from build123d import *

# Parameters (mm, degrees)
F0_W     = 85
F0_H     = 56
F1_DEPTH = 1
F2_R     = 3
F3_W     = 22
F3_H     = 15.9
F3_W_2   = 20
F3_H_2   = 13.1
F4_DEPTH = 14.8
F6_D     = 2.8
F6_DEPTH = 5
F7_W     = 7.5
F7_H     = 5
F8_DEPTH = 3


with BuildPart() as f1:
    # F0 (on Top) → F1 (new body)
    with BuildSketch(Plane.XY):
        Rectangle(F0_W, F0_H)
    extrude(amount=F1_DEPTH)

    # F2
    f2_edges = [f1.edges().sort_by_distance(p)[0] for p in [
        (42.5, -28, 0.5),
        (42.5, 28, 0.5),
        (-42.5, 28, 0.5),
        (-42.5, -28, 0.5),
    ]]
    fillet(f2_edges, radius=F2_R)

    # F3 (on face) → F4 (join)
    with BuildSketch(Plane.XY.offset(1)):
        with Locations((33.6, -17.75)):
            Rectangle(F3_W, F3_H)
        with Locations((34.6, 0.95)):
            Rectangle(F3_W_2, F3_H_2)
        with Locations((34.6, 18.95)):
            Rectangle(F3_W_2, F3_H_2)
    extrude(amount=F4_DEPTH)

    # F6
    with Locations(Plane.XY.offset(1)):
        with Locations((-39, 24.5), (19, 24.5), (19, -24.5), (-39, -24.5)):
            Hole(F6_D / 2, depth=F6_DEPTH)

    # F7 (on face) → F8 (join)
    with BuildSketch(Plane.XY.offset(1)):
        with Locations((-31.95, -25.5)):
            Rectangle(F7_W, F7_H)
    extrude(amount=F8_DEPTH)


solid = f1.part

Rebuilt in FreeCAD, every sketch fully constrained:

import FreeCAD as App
import Part
import Sketcher


def edges_at(feature, points):
    """Names of the edges that pass closest to the given points."""
    edges = feature.Shape.Edges
    near = lambda p: min(range(len(edges)), key=lambda i: edges[i].distToShape(Part.Vertex(*p))[0])
    return sorted({f"Edge{near(p) + 1}" for p in points})

doc = App.newDocument("Part")
body = doc.addObject("PartDesign::Body", "Body")

# Sketch on XY plane
sketch1 = body.newObject("Sketcher::SketchObject", "Sketch")
sketch1.AttachmentSupport = (doc.getObject("XY_Plane"), [""])
sketch1.MapMode = "FlatFace"
sketch1.addGeometry([
    Part.LineSegment(App.Vector(-42, 28, 0), App.Vector(-42, -28, 0)),
    Part.LineSegment(App.Vector(-42, -28, 0), App.Vector(42, -28, 0)),
    Part.LineSegment(App.Vector(42, -28, 0), App.Vector(42, 28, 0)),
    Part.LineSegment(App.Vector(42, 28, 0), App.Vector(-42, 28, 0)),
], False)
sketch1.addConstraint([
    Sketcher.Constraint("Coincident", 0, 2, 1, 1),
    Sketcher.Constraint("Coincident", 1, 2, 2, 1),
    Sketcher.Constraint("Coincident", 2, 2, 3, 1),
    Sketcher.Constraint("Coincident", 3, 2, 0, 1),
    Sketcher.Constraint("Vertical", 0),
    Sketcher.Constraint("Horizontal", 1),
    Sketcher.Constraint("Vertical", 2),
    Sketcher.Constraint("Horizontal", 3),
    Sketcher.Constraint("Symmetric", 0, 2, 2, 2, -1, 1),
    Sketcher.Constraint("DistanceX", 1, 1, 1, 2, 85.0),
    Sketcher.Constraint("DistanceY", 0, 2, 0, 1, 56.0),
])
pad1 = body.newObject("PartDesign::Pad", "Pad")
pad1.Profile = sketch1
pad1.Length = 1
doc.recompute()

fillet = body.newObject("PartDesign::Fillet", "Fillet")
fillet.Base = (pad1, edges_at(pad1, [
    (42.5, -28, 0.5),
    (42.5, 28, 0.5),
    (-42.5, 28, 0.5),
    (-42.5, -28, 0.5),
]))
fillet.Radius = 3

# Sketch on XY plane
sketch2 = body.newObject("Sketcher::SketchObject", "Sketch001")
sketch2.AttachmentSupport = (doc.getObject("XY_Plane"), [""])
sketch2.MapMode = "FlatFace"
sketch2.AttachmentOffset = App.Placement(App.Vector(0, 0, 1), App.Rotation())
sketch2.addGeometry([
    Part.LineSegment(App.Vector(23, -10, 0), App.Vector(23, -26, 0)),  # 0
    Part.LineSegment(App.Vector(23, -26, 0), App.Vector(45, -26, 0)),  # 1
    Part.LineSegment(App.Vector(45, -26, 0), App.Vector(45, -10, 0)),  # 2
    Part.LineSegment(App.Vector(45, -10, 0), App.Vector(23, -10, 0)),  # 3
    Part.LineSegment(App.Vector(25, 8, 0), App.Vector(25, -6, 0)),  # 4
    Part.LineSegment(App.Vector(25, -6, 0), App.Vector(45, -6, 0)),  # 5
    Part.LineSegment(App.Vector(45, -6, 0), App.Vector(45, 8, 0)),  # 6
    Part.LineSegment(App.Vector(45, 8, 0), App.Vector(25, 8, 0)),  # 7
    Part.LineSegment(App.Vector(25, 26, 0), App.Vector(25, 12, 0)),  # 8
    Part.LineSegment(App.Vector(25, 12, 0), App.Vector(45, 12, 0)),  # 9
    Part.LineSegment(App.Vector(45, 12, 0), App.Vector(45, 26, 0)),  # 10
    Part.LineSegment(App.Vector(45, 26, 0), App.Vector(25, 26, 0)),  # 11
], False)
sketch2.addConstraint([
    Sketcher.Constraint("Coincident", 0, 2, 1, 1),
    Sketcher.Constraint("Coincident", 1, 2, 2, 1),
    Sketcher.Constraint("Coincident", 2, 2, 3, 1),
    Sketcher.Constraint("Coincident", 3, 2, 0, 1),
    Sketcher.Constraint("Coincident", 4, 2, 5, 1),
    Sketcher.Constraint("Coincident", 5, 2, 6, 1),
    Sketcher.Constraint("Coincident", 6, 2, 7, 1),
    Sketcher.Constraint("Coincident", 7, 2, 4, 1),
    Sketcher.Constraint("Coincident", 8, 2, 9, 1),
    Sketcher.Constraint("Coincident", 9, 2, 10, 1),
    Sketcher.Constraint("Coincident", 10, 2, 11, 1),
    Sketcher.Constraint("Coincident", 11, 2, 8, 1),
    Sketcher.Constraint("Vertical", 0),
    Sketcher.Constraint("Horizontal", 1),
    Sketcher.Constraint("Vertical", 2),
    Sketcher.Constraint("Horizontal", 3),
    Sketcher.Constraint("Vertical", 4),
    Sketcher.Constraint("Horizontal", 5),
    Sketcher.Constraint("Vertical", 6),
    Sketcher.Constraint("Horizontal", 7),
    Sketcher.Constraint("Vertical", 8),
    Sketcher.Constraint("Horizontal", 9),
    Sketcher.Constraint("Vertical", 10),
    Sketcher.Constraint("Horizontal", 11),
    Sketcher.Constraint("Vertical", 2, 2, 5, 2),
    Sketcher.Constraint("Vertical", 7, 2, 8, 2),
    Sketcher.Constraint("Vertical", 6, 2, 9, 2),
    Sketcher.Constraint("Equal", 6, 8),
    Sketcher.Constraint("DistanceX", 1, 1, 1, 2, 22.0),
    Sketcher.Constraint("DistanceX", 5, 1, 5, 2, 20.0),
    Sketcher.Constraint("DistanceY", 0, 2, 0, 1, 15.9),
    Sketcher.Constraint("DistanceY", 4, 2, 4, 1, 13.1),
    Sketcher.Constraint("DistanceY", 4, 2, 8, 2, 18.0),
    Sketcher.Constraint("DistanceX", -1, 1, 0, 2, 22.6),
    Sketcher.Constraint("DistanceY", 0, 2, -1, 1, 25.7),
    Sketcher.Constraint("DistanceY", 4, 2, -1, 1, 5.6),
])
pad2 = body.newObject("PartDesign::Pad", "Pad001")
pad2.Profile = sketch2
pad2.Length = 14.8

# Sketch on XY plane
sketch3 = body.newObject("Sketcher::SketchObject", "Sketch002")
sketch3.AttachmentSupport = (doc.getObject("XY_Plane"), [""])
sketch3.MapMode = "FlatFace"
sketch3.AttachmentOffset = App.Placement(App.Vector(0, 0, 1), App.Rotation())
sketch3.addGeometry([
    Part.Circle(App.Vector(-39, 24.5, 0), App.Vector(0, 0, 1), 1.4),
    Part.Circle(App.Vector(19, 24.5, 0), App.Vector(0, 0, 1), 1.4),
    Part.Circle(App.Vector(19, -24.5, 0), App.Vector(0, 0, 1), 1.4),
    Part.Circle(App.Vector(-39, -24.5, 0), App.Vector(0, 0, 1), 1.4),
], False)
sketch3.addConstraint([
    Sketcher.Constraint("Equal", 0, 1),
    Sketcher.Constraint("Equal", 1, 2),
    Sketcher.Constraint("Equal", 2, 3),
    Sketcher.Constraint("Symmetric", 1, 3, 2, 3, -1),
    Sketcher.Constraint("Symmetric", 0, 3, 3, 3, -1),
    Sketcher.Constraint("Horizontal", 0, 3, 1, 3),
    Sketcher.Constraint("Diameter", 0, 2.8),
    Sketcher.Constraint("DistanceX", 0, 3, -1, 1, 39.0),
    Sketcher.Constraint("DistanceX", -1, 1, 1, 3, 19.0),
    Sketcher.Constraint("DistanceY", 2, 3, 1, 3, 49.0),
])
doc.recompute()
hole = body.newObject("PartDesign::Hole", "Hole")
hole.Profile = sketch3
hole.ThreadType = "None"
hole.Diameter = 2.8
hole.DepthType = "Dimension"
hole.Depth = 5
hole.DrillPoint = "Flat"

# Sketch on XY plane
sketch4 = body.newObject("Sketcher::SketchObject", "Sketch003")
sketch4.AttachmentSupport = (doc.getObject("XY_Plane"), [""])
sketch4.MapMode = "FlatFace"
sketch4.AttachmentOffset = App.Placement(App.Vector(0, 0, 1), App.Rotation())
sketch4.addGeometry([
    Part.LineSegment(App.Vector(-36, -23, 0), App.Vector(-36, -28, 0)),
    Part.LineSegment(App.Vector(-36, -28, 0), App.Vector(-28, -28, 0)),
    Part.LineSegment(App.Vector(-28, -28, 0), App.Vector(-28, -23, 0)),
    Part.LineSegment(App.Vector(-28, -23, 0), App.Vector(-36, -23, 0)),
], False)
sketch4.addConstraint([
    Sketcher.Constraint("Coincident", 0, 2, 1, 1),
    Sketcher.Constraint("Coincident", 1, 2, 2, 1),
    Sketcher.Constraint("Coincident", 2, 2, 3, 1),
    Sketcher.Constraint("Coincident", 3, 2, 0, 1),
    Sketcher.Constraint("Vertical", 0),
    Sketcher.Constraint("Horizontal", 1),
    Sketcher.Constraint("Vertical", 2),
    Sketcher.Constraint("Horizontal", 3),
    Sketcher.Constraint("DistanceY", 0, 2, 0, 1, 5.0),
    Sketcher.Constraint("DistanceX", 1, 1, 1, 2, 7.5),
    Sketcher.Constraint("DistanceY", 0, 2, -1, 1, 28.0),
    Sketcher.Constraint("DistanceX", 0, 2, -1, 1, 35.7),
])
pad3 = body.newObject("PartDesign::Pad", "Pad002")
pad3.Profile = sketch4
pad3.Length = 3

doc.recompute()
